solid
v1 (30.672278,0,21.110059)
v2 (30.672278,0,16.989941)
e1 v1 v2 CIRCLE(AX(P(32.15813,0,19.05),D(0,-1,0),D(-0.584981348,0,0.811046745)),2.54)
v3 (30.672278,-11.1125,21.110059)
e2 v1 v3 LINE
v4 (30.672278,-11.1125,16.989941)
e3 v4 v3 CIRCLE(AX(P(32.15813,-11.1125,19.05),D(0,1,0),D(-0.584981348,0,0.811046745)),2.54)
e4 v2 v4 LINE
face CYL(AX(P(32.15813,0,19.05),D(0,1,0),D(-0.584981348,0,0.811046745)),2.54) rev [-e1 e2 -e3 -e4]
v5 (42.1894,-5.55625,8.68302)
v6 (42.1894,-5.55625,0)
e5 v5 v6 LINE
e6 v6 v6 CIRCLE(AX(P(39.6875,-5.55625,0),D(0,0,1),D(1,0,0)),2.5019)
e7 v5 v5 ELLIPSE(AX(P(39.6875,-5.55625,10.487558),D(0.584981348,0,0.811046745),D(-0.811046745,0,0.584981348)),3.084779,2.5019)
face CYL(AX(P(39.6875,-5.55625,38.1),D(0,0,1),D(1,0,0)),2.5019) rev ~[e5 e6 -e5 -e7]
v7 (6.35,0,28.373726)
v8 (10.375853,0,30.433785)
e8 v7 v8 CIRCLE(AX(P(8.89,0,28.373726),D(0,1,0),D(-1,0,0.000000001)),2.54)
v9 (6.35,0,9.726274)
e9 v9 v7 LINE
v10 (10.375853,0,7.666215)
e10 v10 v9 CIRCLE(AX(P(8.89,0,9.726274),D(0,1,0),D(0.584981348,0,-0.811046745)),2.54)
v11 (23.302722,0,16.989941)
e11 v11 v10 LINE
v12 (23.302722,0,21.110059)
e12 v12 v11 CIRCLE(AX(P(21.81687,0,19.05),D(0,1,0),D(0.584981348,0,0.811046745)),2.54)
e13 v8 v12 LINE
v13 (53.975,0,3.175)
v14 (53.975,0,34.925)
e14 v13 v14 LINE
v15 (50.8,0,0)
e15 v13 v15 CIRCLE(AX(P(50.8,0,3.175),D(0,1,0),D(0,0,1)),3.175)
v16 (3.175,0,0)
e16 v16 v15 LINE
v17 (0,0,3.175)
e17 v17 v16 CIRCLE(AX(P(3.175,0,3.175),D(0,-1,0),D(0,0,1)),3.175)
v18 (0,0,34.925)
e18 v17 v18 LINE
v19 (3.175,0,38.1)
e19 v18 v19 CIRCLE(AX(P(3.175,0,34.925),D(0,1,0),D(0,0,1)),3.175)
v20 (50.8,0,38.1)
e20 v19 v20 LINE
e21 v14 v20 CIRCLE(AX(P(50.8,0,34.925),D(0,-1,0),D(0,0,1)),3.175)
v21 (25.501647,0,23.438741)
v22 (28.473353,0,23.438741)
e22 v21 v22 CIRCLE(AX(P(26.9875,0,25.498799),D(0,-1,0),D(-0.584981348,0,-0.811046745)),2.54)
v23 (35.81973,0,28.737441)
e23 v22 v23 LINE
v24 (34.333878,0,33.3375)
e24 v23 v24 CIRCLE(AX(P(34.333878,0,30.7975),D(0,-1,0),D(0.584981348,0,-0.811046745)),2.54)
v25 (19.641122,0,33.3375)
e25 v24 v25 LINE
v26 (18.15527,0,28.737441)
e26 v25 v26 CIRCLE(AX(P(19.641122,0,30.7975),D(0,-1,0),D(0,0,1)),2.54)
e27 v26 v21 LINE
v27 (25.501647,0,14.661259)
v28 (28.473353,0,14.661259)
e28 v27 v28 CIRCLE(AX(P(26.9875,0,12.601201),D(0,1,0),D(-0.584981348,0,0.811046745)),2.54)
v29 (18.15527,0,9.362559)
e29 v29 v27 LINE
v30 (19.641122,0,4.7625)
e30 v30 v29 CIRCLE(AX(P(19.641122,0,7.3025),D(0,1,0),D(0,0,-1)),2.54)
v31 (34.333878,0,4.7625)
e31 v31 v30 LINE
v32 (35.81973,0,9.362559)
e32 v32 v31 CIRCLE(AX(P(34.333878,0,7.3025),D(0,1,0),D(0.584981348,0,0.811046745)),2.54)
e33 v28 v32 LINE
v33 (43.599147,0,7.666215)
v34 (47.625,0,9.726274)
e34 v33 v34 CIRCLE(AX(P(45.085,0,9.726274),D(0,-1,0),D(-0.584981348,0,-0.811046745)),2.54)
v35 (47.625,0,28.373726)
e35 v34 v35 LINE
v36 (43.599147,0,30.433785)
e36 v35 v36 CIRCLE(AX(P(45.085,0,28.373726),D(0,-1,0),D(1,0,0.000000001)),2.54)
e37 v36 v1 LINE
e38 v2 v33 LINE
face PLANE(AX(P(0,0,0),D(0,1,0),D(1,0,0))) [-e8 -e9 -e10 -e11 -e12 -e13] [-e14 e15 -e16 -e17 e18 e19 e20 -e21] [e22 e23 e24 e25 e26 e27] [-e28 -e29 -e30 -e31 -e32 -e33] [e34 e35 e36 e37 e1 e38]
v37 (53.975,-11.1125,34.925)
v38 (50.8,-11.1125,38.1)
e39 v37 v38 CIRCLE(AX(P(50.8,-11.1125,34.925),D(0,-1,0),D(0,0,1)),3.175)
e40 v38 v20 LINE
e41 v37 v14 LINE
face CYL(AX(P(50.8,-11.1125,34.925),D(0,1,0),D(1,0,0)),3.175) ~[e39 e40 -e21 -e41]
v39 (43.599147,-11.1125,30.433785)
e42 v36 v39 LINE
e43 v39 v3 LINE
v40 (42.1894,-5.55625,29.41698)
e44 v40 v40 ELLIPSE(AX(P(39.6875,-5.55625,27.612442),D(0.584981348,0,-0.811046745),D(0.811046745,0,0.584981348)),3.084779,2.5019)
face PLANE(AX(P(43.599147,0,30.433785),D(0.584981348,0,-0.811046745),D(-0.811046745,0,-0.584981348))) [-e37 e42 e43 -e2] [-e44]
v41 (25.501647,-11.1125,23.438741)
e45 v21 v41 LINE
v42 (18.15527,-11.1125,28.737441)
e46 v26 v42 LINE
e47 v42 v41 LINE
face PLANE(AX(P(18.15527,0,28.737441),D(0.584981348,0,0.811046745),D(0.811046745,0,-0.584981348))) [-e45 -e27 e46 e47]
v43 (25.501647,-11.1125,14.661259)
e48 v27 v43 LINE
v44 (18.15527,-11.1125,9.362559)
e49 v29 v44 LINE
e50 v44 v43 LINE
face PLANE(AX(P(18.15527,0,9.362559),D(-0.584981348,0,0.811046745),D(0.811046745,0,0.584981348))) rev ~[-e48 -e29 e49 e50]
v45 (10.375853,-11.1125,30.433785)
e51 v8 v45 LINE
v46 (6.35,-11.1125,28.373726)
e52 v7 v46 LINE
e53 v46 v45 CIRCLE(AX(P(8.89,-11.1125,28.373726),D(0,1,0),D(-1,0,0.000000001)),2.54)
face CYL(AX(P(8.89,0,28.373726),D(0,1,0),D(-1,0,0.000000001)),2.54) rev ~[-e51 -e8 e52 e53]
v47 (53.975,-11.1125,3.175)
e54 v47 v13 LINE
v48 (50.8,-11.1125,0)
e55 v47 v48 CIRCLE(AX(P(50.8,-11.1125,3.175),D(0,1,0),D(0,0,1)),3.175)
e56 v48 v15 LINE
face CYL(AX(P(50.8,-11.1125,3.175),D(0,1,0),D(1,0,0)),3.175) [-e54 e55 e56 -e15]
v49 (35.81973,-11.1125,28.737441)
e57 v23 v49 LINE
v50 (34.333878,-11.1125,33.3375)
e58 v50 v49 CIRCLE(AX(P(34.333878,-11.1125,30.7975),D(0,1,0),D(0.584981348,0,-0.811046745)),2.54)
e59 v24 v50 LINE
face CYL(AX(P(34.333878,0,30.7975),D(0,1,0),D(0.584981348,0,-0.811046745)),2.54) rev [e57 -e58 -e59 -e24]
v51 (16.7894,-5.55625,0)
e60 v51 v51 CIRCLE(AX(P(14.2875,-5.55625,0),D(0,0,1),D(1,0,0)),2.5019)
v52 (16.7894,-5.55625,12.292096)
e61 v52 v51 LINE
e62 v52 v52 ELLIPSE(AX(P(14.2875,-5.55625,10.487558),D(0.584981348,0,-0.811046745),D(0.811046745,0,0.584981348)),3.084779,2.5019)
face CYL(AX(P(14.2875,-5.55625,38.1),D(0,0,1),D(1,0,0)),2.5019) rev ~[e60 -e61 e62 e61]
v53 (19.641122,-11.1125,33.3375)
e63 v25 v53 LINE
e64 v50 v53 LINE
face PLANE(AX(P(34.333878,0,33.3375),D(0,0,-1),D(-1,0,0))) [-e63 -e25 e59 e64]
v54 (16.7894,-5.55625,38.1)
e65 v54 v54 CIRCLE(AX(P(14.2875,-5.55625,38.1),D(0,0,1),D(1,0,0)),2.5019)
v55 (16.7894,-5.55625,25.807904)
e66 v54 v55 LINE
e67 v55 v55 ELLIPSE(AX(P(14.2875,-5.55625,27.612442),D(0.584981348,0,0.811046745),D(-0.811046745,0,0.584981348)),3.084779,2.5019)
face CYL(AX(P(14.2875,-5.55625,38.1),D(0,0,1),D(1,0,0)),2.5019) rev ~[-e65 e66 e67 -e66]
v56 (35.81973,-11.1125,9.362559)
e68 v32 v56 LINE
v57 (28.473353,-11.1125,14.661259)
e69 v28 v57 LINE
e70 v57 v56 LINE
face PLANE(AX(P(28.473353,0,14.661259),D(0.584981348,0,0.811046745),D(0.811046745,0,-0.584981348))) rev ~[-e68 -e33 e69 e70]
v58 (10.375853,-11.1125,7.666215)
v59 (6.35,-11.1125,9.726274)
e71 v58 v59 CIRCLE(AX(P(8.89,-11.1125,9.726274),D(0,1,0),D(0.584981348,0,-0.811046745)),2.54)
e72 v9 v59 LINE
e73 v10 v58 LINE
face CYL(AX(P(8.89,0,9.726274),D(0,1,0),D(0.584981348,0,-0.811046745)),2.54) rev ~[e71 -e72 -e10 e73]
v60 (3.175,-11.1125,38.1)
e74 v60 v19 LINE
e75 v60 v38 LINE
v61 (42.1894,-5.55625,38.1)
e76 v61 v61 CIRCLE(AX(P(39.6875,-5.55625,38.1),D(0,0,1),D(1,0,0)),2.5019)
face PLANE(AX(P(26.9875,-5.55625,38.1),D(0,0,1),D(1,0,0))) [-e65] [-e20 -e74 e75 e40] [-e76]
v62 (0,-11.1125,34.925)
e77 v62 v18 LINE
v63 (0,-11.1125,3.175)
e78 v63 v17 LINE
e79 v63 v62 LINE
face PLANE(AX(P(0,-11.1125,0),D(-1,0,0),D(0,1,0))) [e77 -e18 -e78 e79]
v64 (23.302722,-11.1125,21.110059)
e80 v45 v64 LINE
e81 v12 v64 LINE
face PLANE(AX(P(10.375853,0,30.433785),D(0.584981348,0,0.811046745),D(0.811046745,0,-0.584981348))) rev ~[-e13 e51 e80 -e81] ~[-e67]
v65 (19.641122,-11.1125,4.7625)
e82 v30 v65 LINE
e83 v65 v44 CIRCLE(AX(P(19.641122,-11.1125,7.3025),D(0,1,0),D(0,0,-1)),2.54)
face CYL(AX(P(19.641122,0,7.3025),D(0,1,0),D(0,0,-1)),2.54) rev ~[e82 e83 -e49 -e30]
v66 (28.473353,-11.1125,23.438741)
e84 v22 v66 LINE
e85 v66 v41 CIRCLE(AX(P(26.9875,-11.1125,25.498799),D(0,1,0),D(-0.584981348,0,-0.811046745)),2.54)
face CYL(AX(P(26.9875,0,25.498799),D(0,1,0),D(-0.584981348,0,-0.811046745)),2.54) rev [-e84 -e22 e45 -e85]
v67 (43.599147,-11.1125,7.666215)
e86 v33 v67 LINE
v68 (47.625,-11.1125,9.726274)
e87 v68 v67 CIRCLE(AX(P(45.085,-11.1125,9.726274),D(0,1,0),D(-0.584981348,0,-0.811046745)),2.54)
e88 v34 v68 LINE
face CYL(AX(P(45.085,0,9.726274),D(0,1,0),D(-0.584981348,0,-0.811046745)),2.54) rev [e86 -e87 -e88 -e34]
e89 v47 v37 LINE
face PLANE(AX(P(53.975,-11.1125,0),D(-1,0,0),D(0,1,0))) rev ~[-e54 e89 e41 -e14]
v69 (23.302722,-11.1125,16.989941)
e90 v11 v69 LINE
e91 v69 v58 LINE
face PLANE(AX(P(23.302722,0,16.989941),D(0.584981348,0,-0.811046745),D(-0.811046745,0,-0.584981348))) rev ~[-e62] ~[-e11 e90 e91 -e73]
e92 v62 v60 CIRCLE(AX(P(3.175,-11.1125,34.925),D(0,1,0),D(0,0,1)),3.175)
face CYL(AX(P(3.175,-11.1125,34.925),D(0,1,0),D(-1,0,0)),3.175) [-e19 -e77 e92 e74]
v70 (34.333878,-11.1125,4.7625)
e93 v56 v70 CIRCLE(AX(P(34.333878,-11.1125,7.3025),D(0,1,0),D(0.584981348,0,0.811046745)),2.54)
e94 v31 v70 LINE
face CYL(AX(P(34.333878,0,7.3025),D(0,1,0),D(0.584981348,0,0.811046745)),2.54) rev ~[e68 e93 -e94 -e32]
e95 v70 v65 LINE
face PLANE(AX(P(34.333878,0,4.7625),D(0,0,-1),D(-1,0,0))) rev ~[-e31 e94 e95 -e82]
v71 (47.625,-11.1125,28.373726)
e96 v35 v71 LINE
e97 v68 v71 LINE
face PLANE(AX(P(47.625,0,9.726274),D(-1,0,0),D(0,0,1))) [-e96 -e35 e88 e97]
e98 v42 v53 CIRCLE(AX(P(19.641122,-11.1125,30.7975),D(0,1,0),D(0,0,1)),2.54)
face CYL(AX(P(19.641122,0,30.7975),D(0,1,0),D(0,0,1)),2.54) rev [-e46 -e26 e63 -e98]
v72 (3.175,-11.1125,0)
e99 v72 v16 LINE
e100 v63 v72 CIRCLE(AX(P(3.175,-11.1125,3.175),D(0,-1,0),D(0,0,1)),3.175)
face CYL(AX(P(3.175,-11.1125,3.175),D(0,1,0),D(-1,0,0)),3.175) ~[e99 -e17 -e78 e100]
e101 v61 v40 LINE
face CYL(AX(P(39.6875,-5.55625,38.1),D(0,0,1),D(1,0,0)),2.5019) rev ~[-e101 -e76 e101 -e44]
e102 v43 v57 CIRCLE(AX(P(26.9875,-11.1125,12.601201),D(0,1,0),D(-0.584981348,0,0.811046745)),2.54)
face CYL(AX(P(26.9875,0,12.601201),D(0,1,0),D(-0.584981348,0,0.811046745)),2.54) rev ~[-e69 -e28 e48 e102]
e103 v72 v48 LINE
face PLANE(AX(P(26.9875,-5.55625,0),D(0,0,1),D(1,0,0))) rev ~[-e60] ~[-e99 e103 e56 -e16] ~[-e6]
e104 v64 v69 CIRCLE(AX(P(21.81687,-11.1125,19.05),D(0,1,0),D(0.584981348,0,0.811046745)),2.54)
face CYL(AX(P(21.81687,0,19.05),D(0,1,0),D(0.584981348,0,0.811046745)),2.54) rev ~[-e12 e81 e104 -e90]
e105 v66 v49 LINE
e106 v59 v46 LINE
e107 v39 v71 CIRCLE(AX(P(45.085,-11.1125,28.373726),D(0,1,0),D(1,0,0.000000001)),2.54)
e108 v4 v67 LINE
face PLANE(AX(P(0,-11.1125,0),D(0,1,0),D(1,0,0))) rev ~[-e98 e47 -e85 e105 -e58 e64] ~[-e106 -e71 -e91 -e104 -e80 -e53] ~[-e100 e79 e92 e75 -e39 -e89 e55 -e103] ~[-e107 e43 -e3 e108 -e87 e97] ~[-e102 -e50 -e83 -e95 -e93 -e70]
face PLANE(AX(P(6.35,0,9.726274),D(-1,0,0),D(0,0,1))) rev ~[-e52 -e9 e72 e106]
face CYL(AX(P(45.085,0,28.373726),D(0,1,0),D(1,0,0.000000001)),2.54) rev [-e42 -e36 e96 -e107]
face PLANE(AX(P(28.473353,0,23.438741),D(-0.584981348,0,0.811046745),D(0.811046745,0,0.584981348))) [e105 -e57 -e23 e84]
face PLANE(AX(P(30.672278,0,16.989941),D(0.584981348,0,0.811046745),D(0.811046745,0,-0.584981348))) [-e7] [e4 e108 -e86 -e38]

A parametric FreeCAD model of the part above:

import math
import FreeCAD as App
import Part
import Sketcher
Q = App.Units.Quantity


def edges_at(feature, points):
    """Names of the edges that pass closest to the given points."""
    edges = feature.Shape.Edges
    near = lambda p: min(range(len(edges)), key=lambda i: edges[i].distToShape(Part.Vertex(*p))[0])
    return sorted({f"Edge{near(p) + 1}" for p in points})


def add_polygon(sketch, points):
    """Adds a closed chain of lines whose ends are joined by coincident constraints."""
    first, n = sketch.GeometryCount, len(points)
    for a, b in zip(points, points[1:] + points[:1]):
        sketch.addGeometry(Part.LineSegment(App.Vector(*a, 0), App.Vector(*b, 0)), False)
    for i in range(n):
        sketch.addConstraint(Sketcher.Constraint("Coincident", first + i, 2, first + (i + 1) % n, 1))

doc = App.newDocument("Part")
body = doc.addObject("PartDesign::Body", "Body")

sketch1 = body.newObject("Sketcher::SketchObject", "Sketch")
sketch1.AttachmentSupport = (doc.getObject("XY_Plane"), [""])
sketch1.MapMode = "FlatFace"
add_polygon(sketch1, [(0, 0), (0, -11), (54, -11), (54, 0)])
sketch1.addConstraint([
    Sketcher.Constraint("Vertical", 0),
    Sketcher.Constraint("Horizontal", 1),
    Sketcher.Constraint("Vertical", 2),
    Sketcher.Constraint("Horizontal", 3),
    Sketcher.Constraint("Coincident", 3, 2, -1, 1),
    Sketcher.Constraint("DistanceX", 1, 1, 1, 2, Q("2.125 in")),
    Sketcher.Constraint("DistanceY", 0, 2, 0, 1, Q("0.4375 in")),
])
pad1 = body.newObject("PartDesign::Pad", "Pad")
pad1.Profile = sketch1
pad1.Length = Q("1.5 in")
doc.recompute()

fillet = body.newObject("PartDesign::Fillet", "Fillet")
fillet.Base = (pad1, edges_at(pad1, [
    (0, -5.556, 38.1),
    (0, -5.556, 0),
    (53.975, -5.556, 0),
    (53.975, -5.556, 38.1),
]))
fillet.Radius = Q("0.125 in")

sketch2 = body.newObject("Sketcher::SketchObject", "Sketch001")
sketch2.AttachmentSupport = (doc.getObject("XZ_Plane"), [""])
sketch2.MapMode = "FlatFace"
sketch2.addGeometry([
    Part.LineSegment(App.Vector(6.3, 9.7, 0), App.Vector(6.3, 28.4, 0)),
    Part.ArcOfCircle(Part.Circle(App.Vector(8.9, 28.4, 0), App.Vector(0, 0, 1), 2.5), math.radians(54), math.radians(180)),
    Part.LineSegment(App.Vector(10.4, 30.4, 0), App.Vector(23.3, 21.1, 0)),
    Part.ArcOfCircle(Part.Circle(App.Vector(21.8, 19.1, 0), App.Vector(0, 0, 1), 2.5), math.radians(-54), math.radians(54)),
    Part.LineSegment(App.Vector(23.3, 17, 0), App.Vector(10.4, 7.7, 0)),
    Part.ArcOfCircle(Part.Circle(App.Vector(8.9, 9.7, 0), App.Vector(0, 0, 1), 2.5), math.radians(-180), math.radians(-54)),
    Part.LineSegment(App.Vector(18.2, 9.4, 0), App.Vector(25.5, 14.7, 0)),
    Part.ArcOfCircle(Part.Circle(App.Vector(27, 12.6, 0), App.Vector(0, 0, 1), 2.5), math.radians(54), math.radians(126)),
    Part.LineSegment(App.Vector(28.5, 14.7, 0), App.Vector(35.8, 9.4, 0)),
    Part.ArcOfCircle(Part.Circle(App.Vector(34.3, 7.3, 0), App.Vector(0, 0, 1), 2.5), math.radians(-90), math.radians(54)),
    Part.LineSegment(App.Vector(34.3, 4.8, 0), App.Vector(19.6, 4.8, 0)),
    Part.ArcOfCircle(Part.Circle(App.Vector(19.6, 7.3, 0), App.Vector(0, 0, 1), 2.5), math.radians(126), math.radians(270)),
    Part.LineSegment(App.Vector(25.5, 23.4, 0), App.Vector(18.2, 28.7, 0)),
    Part.ArcOfCircle(Part.Circle(App.Vector(19.6, 30.8, 0), App.Vector(0, 0, 1), 2.5), math.radians(90), math.radians(234)),
    Part.LineSegment(App.Vector(19.6, 33.3, 0), App.Vector(34.3, 33.3, 0)),
    Part.ArcOfCircle(Part.Circle(App.Vector(34.3, 30.8, 0), App.Vector(0, 0, 1), 2.5), math.radians(-54), math.radians(90)),
    Part.LineSegment(App.Vector(35.8, 28.7, 0), App.Vector(28.5, 23.4, 0)),
    Part.ArcOfCircle(Part.Circle(App.Vector(27, 25.5, 0), App.Vector(0, 0, 1), 2.5), math.radians(-126), math.radians(-54)),
    Part.LineSegment(App.Vector(47.6, 28.4, 0), App.Vector(47.6, 9.7, 0)),
    Part.ArcOfCircle(Part.Circle(App.Vector(45.1, 9.7, 0), App.Vector(0, 0, 1), 2.5), math.radians(-126), math.radians(0)),
    Part.LineSegment(App.Vector(43.6, 7.7, 0), App.Vector(30.7, 17, 0)),
    Part.ArcOfCircle(Part.Circle(App.Vector(32.2, 19.1, 0), App.Vector(0, 0, 1), 2.5), math.radians(126), math.radians(234)),
    Part.LineSegment(App.Vector(30.7, 21.1, 0), App.Vector(43.6, 30.4, 0)),
    Part.ArcOfCircle(Part.Circle(App.Vector(45.1, 28.4, 0), App.Vector(0, 0, 1), 2.5), math.radians(0), math.radians(126)),
], False)
sketch2.addConstraint([
    Sketcher.Constraint("Tangent", 0, 2, 1, 2),
    Sketcher.Constraint("Tangent", 1, 1, 2, 1),
    Sketcher.Constraint("Tangent", 2, 2, 3, 2),
    Sketcher.Constraint("Tangent", 3, 1, 4, 1),
    Sketcher.Constraint("Tangent", 4, 2, 5, 2),
    Sketcher.Constraint("Tangent", 5, 1, 0, 1),
    Sketcher.Constraint("Tangent", 6, 2, 7, 2),
    Sketcher.Constraint("Tangent", 7, 1, 8, 1),
    Sketcher.Constraint("Tangent", 8, 2, 9, 2),
    Sketcher.Constraint("Tangent", 9, 1, 10, 1),
    Sketcher.Constraint("Tangent", 10, 2, 11, 2),
    Sketcher.Constraint("Tangent", 11, 1, 6, 1),
    Sketcher.Constraint("Tangent", 12, 2, 13, 2),
    Sketcher.Constraint("Tangent", 13, 1, 14, 1),
    Sketcher.Constraint("Tangent", 14, 2, 15, 2),
    Sketcher.Constraint("Tangent", 15, 1, 16, 1),
    Sketcher.Constraint("Tangent", 16, 2, 17, 2),
    Sketcher.Constraint("Tangent", 17, 1, 12, 1),
    Sketcher.Constraint("Tangent", 18, 2, 19, 2),
    Sketcher.Constraint("Tangent", 19, 1, 20, 1),
    Sketcher.Constraint("Tangent", 20, 2, 21, 2),
    Sketcher.Constraint("Tangent", 21, 1, 22, 1),
    Sketcher.Constraint("Tangent", 22, 2, 23, 2),
    Sketcher.Constraint("Tangent", 23, 1, 18, 1),
    Sketcher.Constraint("Vertical", 0),
    Sketcher.Constraint("Horizontal", 10),
    Sketcher.Constraint("Horizontal", 14),
    Sketcher.Constraint("Vertical", 18),
    Sketcher.Constraint("Equal", 1, 3),
    Sketcher.Constraint("Equal", 3, 5),
    Sketcher.Constraint("Equal", 5, 7),
    Sketcher.Constraint("Equal", 7, 9),
    Sketcher.Constraint("Equal", 9, 11),
    Sketcher.Constraint("Equal", 11, 13),
    Sketcher.Constraint("Equal", 13, 15),
    Sketcher.Constraint("Equal", 15, 17),
    Sketcher.Constraint("Equal", 17, 19),
    Sketcher.Constraint("Equal", 19, 21),
    Sketcher.Constraint("Equal", 21, 23),
    Sketcher.Constraint("Parallel", 4, 6),
    Sketcher.Constraint("Parallel", 2, 8),
    Sketcher.Constraint("Parallel", 8, 12),
    Sketcher.Constraint("Parallel", 6, 16),
    Sketcher.Constraint("Parallel", 12, 20),
    Sketcher.Constraint("Parallel", 16, 22),
    Sketcher.Constraint("Horizontal", 5, 3, 19, 3),
    Sketcher.Constraint("Horizontal", 3, 3, 21, 3),
    Sketcher.Constraint("Horizontal", 1, 3, 23, 3),
    Sketcher.Constraint("Vertical", 11, 3, 13, 3),
    Sketcher.Constraint("Vertical", 9, 3, 15, 3),
    Sketcher.Constraint("Radius", 1, Q("0.1 in")),
    Sketcher.Constraint("DistanceX", -1, 1, 1, 3, Q("0.35 in")),
    Sketcher.Constraint("DistanceY", -1, 1, 3, 3, Q("0.75 in")),
    Sketcher.Constraint("DistanceX", -1, 1, 7, 3, Q("1.0625 in")),
    Sketcher.Constraint("DistanceX", -1, 1, 19, 3, Q("1.775 in")),
    Sketcher.Constraint("DistanceY", -1, 1, 9, 1, Q("0.1875 in")),
    Sketcher.Constraint("DistanceY", -1, 1, 13, 1, Q("1.3125 in")),
    Sketcher.Constraint("Distance", 2, Q("0.6275001 in")),
    Sketcher.Constraint("DistanceY", -1, 1, 7, 3, 12.601201),
    Sketcher.Constraint("DistanceX", 13, 3, 2, 2, 3.6616),
])
pocket1 = body.newObject("PartDesign::Pocket", "Pocket")
pocket1.Profile = sketch2
pocket1.Type = "ThroughAll"
pocket1.Reversed = True

sketch3 = body.newObject("Sketcher::SketchObject", "Sketch002")
sketch3.AttachmentSupport = (doc.getObject("XY_Plane"), [""])
sketch3.MapMode = "FlatFace"
sketch3.AttachmentOffset = App.Placement(App.Vector(0, 0, 1.5 * 25.4), App.Rotation())
sketch3.addGeometry([
    Part.Circle(App.Vector(14.3, -5.6, 0), App.Vector(0, 0, 1), 2.5),
    Part.Circle(App.Vector(39.7, -5.6, 0), App.Vector(0, 0, 1), 2.5),
], False)
sketch3.addConstraint([
    Sketcher.Constraint("Equal", 0, 1),
    Sketcher.Constraint("Horizontal", 0, 3, 1, 3),
    Sketcher.Constraint("Diameter", 0, Q("0.197 in")),
    Sketcher.Constraint("DistanceX", 0, 3, 1, 3, Q("1 in")),
    Sketcher.Constraint("DistanceX", -1, 1, 0, 3, Q("0.5625 in")),
    Sketcher.Constraint("DistanceY", 0, 3, -1, 1, Q("0.21875 in")),
])
pocket2 = body.newObject("PartDesign::Pocket", "Pocket001")
pocket2.Profile = sketch3
pocket2.Length = Q("1.5 in")

doc.recompute()
